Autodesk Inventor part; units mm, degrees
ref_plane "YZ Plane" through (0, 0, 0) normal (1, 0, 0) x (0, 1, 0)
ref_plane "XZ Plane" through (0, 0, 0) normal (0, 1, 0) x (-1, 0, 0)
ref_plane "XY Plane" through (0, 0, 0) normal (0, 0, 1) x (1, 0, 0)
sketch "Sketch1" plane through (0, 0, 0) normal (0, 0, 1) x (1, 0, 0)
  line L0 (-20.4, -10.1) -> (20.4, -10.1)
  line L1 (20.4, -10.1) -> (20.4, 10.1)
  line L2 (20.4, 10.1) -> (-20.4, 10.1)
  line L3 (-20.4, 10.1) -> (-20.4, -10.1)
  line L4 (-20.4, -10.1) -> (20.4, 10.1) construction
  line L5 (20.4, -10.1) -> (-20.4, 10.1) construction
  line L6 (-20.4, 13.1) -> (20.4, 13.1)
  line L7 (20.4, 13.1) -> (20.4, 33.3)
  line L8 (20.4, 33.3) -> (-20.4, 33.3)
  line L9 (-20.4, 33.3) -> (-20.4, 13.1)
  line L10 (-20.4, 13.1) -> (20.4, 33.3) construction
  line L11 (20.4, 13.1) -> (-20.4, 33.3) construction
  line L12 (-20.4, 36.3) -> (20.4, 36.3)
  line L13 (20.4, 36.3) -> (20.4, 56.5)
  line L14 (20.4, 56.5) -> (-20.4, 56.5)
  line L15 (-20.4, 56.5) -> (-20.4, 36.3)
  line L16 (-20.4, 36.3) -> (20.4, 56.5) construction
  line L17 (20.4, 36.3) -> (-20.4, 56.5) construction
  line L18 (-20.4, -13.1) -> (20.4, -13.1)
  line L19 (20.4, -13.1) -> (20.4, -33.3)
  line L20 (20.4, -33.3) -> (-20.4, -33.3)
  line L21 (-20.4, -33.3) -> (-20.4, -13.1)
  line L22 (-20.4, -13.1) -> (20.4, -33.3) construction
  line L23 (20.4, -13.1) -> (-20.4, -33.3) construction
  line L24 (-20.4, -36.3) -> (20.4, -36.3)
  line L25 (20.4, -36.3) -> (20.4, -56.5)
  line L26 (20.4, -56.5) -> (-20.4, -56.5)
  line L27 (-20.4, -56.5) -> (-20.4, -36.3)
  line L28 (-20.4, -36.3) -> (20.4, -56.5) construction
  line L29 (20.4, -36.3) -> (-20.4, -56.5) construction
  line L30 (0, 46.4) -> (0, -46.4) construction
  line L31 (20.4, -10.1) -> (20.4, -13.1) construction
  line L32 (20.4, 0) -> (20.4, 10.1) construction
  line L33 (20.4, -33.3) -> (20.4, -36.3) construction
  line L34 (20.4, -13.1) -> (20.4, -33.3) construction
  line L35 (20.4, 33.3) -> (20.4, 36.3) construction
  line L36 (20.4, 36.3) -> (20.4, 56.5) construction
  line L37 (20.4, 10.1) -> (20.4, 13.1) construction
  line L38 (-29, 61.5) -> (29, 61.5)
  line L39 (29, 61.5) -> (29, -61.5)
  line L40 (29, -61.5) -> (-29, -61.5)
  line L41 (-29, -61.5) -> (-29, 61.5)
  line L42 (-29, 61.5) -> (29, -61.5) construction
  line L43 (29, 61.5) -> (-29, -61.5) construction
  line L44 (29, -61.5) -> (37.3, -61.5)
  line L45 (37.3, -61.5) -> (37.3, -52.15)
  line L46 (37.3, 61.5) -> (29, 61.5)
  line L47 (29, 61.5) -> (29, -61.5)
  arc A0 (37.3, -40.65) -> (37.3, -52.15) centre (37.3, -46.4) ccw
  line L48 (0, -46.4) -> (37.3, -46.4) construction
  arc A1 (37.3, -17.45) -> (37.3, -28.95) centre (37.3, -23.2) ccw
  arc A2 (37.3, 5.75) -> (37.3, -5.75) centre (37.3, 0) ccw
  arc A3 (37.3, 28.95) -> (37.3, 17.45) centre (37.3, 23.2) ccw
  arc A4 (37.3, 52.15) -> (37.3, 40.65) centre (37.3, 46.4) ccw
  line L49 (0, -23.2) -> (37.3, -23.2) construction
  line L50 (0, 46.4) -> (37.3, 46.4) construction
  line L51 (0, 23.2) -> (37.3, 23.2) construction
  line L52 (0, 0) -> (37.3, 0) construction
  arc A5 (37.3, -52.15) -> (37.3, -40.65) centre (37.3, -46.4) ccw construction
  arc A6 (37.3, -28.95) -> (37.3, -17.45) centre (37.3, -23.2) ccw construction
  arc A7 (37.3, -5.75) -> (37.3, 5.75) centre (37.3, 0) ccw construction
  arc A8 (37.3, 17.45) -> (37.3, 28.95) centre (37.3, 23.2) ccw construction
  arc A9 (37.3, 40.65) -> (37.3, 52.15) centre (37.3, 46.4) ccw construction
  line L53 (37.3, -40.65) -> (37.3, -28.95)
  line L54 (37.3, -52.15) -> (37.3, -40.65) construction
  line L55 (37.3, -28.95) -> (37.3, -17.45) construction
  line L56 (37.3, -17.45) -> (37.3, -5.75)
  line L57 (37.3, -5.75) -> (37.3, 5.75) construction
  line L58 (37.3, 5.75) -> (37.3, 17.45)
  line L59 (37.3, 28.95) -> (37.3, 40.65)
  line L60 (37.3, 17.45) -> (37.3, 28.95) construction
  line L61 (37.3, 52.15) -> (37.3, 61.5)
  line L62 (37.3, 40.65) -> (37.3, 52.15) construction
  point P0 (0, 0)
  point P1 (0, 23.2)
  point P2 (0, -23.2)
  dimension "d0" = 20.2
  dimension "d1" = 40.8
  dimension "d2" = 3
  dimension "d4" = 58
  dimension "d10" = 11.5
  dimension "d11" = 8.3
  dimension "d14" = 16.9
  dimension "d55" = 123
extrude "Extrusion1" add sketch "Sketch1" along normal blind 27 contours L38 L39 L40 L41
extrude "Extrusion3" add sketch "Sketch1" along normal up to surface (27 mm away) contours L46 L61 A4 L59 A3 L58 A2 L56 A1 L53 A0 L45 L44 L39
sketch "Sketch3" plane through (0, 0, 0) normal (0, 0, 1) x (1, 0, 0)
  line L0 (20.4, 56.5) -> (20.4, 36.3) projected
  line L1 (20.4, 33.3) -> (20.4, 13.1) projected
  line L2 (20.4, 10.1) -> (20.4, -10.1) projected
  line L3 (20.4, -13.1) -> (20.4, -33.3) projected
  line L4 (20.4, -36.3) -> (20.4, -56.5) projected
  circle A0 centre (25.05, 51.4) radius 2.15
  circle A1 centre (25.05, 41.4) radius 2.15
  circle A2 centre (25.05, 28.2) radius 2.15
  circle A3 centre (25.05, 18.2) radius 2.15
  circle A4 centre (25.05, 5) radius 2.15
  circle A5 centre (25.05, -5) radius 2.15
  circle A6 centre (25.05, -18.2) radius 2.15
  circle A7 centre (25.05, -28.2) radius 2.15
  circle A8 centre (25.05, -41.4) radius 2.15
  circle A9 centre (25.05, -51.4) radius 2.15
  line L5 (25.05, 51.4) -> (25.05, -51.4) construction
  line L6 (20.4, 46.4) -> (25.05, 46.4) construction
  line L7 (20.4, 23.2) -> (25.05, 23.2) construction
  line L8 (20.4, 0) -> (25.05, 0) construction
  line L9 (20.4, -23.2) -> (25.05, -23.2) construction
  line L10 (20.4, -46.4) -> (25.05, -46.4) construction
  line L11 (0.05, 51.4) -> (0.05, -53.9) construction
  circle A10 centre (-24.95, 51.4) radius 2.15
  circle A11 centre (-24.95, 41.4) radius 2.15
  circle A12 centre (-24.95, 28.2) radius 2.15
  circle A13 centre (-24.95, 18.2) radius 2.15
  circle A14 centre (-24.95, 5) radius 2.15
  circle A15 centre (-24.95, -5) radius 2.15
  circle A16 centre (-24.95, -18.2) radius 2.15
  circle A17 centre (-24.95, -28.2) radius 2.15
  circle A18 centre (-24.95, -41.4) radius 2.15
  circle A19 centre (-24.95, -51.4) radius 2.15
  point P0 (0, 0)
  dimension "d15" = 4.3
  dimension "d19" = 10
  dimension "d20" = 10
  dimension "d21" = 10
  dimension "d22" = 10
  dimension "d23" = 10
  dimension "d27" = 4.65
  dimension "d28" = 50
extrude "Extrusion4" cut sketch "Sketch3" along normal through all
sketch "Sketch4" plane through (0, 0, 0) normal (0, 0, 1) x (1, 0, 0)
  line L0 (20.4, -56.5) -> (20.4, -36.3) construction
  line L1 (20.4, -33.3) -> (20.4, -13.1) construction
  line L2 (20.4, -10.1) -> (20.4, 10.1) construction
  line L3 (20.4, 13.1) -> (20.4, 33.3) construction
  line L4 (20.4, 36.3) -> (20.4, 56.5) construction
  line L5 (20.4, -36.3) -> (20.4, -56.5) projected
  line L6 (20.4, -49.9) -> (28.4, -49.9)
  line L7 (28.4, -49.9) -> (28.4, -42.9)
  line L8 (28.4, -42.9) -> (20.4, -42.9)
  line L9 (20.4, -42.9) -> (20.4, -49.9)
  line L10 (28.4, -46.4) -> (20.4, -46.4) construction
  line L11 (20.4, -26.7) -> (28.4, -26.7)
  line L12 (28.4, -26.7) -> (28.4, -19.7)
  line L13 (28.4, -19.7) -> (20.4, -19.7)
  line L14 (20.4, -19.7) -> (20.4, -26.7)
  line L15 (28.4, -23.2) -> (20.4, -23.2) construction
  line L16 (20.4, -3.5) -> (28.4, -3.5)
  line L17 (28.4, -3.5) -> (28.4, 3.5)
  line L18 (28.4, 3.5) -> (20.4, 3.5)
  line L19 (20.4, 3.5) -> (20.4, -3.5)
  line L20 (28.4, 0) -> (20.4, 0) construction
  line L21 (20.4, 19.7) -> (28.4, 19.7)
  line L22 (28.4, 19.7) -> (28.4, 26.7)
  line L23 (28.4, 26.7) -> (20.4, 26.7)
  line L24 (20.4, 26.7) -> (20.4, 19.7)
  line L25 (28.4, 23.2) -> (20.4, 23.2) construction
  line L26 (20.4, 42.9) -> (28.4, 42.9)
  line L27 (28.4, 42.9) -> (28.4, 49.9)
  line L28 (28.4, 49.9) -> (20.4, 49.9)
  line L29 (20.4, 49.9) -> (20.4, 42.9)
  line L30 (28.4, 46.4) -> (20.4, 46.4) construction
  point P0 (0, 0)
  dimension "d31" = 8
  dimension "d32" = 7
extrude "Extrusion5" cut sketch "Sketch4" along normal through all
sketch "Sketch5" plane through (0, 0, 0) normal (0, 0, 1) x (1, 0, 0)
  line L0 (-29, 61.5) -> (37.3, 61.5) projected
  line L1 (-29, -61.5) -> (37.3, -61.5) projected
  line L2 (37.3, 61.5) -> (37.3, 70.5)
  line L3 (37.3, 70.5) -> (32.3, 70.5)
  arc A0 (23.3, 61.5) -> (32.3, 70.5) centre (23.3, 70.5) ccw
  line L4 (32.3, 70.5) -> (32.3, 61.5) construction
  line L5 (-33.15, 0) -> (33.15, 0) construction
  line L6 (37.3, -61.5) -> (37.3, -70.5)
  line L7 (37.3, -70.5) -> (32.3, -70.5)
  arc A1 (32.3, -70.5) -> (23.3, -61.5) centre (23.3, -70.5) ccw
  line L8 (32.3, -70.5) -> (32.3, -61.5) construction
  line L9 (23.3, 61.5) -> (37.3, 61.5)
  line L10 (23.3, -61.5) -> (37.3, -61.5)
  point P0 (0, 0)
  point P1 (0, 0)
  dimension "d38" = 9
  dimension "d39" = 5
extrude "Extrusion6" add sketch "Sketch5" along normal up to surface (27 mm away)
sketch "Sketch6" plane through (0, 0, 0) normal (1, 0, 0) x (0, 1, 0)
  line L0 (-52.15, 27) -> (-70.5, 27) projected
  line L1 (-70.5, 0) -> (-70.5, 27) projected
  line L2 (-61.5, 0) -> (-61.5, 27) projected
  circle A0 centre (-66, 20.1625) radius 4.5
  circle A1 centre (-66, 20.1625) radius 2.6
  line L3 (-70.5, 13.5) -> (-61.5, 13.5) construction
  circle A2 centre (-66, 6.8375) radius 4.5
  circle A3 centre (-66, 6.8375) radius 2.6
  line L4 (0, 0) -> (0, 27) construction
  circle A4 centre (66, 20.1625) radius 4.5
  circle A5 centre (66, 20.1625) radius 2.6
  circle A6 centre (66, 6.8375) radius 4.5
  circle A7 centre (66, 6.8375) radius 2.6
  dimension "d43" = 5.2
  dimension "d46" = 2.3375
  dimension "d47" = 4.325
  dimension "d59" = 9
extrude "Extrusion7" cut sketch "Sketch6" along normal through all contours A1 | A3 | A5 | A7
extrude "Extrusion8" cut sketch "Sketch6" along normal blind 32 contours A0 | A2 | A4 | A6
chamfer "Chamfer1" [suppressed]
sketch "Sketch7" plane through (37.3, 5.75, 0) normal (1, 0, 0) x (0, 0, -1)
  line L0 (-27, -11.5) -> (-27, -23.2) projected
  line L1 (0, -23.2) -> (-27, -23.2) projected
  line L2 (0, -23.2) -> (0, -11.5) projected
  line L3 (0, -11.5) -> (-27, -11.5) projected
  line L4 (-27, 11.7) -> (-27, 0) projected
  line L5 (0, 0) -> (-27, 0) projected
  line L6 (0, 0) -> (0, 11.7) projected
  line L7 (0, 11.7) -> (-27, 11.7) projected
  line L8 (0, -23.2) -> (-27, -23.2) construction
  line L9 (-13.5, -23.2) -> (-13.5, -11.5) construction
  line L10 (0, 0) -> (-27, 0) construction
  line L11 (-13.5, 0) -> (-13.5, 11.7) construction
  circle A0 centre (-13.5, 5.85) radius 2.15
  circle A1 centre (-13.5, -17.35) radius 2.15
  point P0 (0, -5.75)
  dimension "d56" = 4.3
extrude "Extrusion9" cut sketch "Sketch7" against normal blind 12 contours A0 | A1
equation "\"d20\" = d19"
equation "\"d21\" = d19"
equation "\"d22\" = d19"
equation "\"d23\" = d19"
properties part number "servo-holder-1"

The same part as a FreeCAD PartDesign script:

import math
import FreeCAD as App
import Part
import Sketcher
Q = App.Units.Quantity

doc = App.newDocument("Part")
body = doc.addObject("PartDesign::Body", "Body")

sketch1 = body.newObject("Sketcher::SketchObject", "Sketch")
sketch1.AttachmentSupport = (doc.getObject("XY_Plane"), [""])
sketch1.MapMode = "FlatFace"
sketch1.addGeometry(Part.LineSegment(App.Vector(29, 62, 0), App.Vector(-29, 62, 0)), False)
sketch1.addGeometry(Part.LineSegment(App.Vector(-29, 62, 0), App.Vector(-29, -62, 0)), False)
sketch1.addGeometry(Part.LineSegment(App.Vector(-29, -62, 0), App.Vector(29, -62, 0)), False)
sketch1.addGeometry(Part.LineSegment(App.Vector(29, -62, 0), App.Vector(29, 62, 0)), False)
sketch1.addGeometry(Part.LineSegment(App.Vector(-20, -56, 0), App.Vector(-20, -36, 0)), False)
sketch1.addGeometry(Part.LineSegment(App.Vector(-20, -36, 0), App.Vector(20, -36, 0)), False)
sketch1.addGeometry(Part.LineSegment(App.Vector(20, -36, 0), App.Vector(20, -56, 0)), False)
sketch1.addGeometry(Part.LineSegment(App.Vector(20, -56, 0), App.Vector(-20, -56, 0)), False)
sketch1.addGeometry(Part.LineSegment(App.Vector(-20, -33, 0), App.Vector(-20, -13, 0)), False)
sketch1.addGeometry(Part.LineSegment(App.Vector(-20, -13, 0), App.Vector(20, -13, 0)), False)
sketch1.addGeometry(Part.LineSegment(App.Vector(20, -13, 0), App.Vector(20, -33, 0)), False)
sketch1.addGeometry(Part.LineSegment(App.Vector(20, -33, 0), App.Vector(-20, -33, 0)), False)
sketch1.addGeometry(Part.LineSegment(App.Vector(20, -10, 0), App.Vector(-20, -10, 0)), False)
sketch1.addGeometry(Part.LineSegment(App.Vector(-20, -10, 0), App.Vector(-20, 10, 0)), False)
sketch1.addGeometry(Part.LineSegment(App.Vector(-20, 10, 0), App.Vector(20, 10, 0)), False)
sketch1.addGeometry(Part.LineSegment(App.Vector(20, 10, 0), App.Vector(20, -10, 0)), False)
sketch1.addGeometry(Part.LineSegment(App.Vector(20, 13, 0), App.Vector(-20, 13, 0)), False)
sketch1.addGeometry(Part.LineSegment(App.Vector(-20, 13, 0), App.Vector(-20, 33, 0)), False)
sketch1.addGeometry(Part.LineSegment(App.Vector(-20, 33, 0), App.Vector(20, 33, 0)), False)
sketch1.addGeometry(Part.LineSegment(App.Vector(20, 33, 0), App.Vector(20, 13, 0)), False)
sketch1.addGeometry(Part.LineSegment(App.Vector(20, 36, 0), App.Vector(-20, 36, 0)), False)
sketch1.addGeometry(Part.LineSegment(App.Vector(-20, 36, 0), App.Vector(-20, 56, 0)), False)
sketch1.addGeometry(Part.LineSegment(App.Vector(-20, 56, 0), App.Vector(20, 56, 0)), False)
sketch1.addGeometry(Part.LineSegment(App.Vector(20, 56, 0), App.Vector(20, 36, 0)), False)
sketch1.addConstraint(Sketcher.Constraint("Coincident", 0, 2, 1, 1))
sketch1.addConstraint(Sketcher.Constraint("Coincident", 1, 2, 2, 1))
sketch1.addConstraint(Sketcher.Constraint("Coincident", 2, 2, 3, 1))
sketch1.addConstraint(Sketcher.Constraint("Coincident", 3, 2, 0, 1))
sketch1.addConstraint(Sketcher.Constraint("Coincident", 4, 2, 5, 1))
sketch1.addConstraint(Sketcher.Constraint("Coincident", 5, 2, 6, 1))
sketch1.addConstraint(Sketcher.Constraint("Coincident", 6, 2, 7, 1))
sketch1.addConstraint(Sketcher.Constraint("Coincident", 7, 2, 4, 1))
sketch1.addConstraint(Sketcher.Constraint("Coincident", 8, 2, 9, 1))
sketch1.addConstraint(Sketcher.Constraint("Coincident", 9, 2, 10, 1))
sketch1.addConstraint(Sketcher.Constraint("Coincident", 10, 2, 11, 1))
sketch1.addConstraint(Sketcher.Constraint("Coincident", 11, 2, 8, 1))
sketch1.addConstraint(Sketcher.Constraint("Coincident", 12, 2, 13, 1))
sketch1.addConstraint(Sketcher.Constraint("Coincident", 13, 2, 14, 1))
sketch1.addConstraint(Sketcher.Constraint("Coincident", 14, 2, 15, 1))
sketch1.addConstraint(Sketcher.Constraint("Coincident", 15, 2, 12, 1))
sketch1.addConstraint(Sketcher.Constraint("Coincident", 16, 2, 17, 1))
sketch1.addConstraint(Sketcher.Constraint("Coincident", 17, 2, 18, 1))
sketch1.addConstraint(Sketcher.Constraint("Coincident", 18, 2, 19, 1))
sketch1.addConstraint(Sketcher.Constraint("Coincident", 19, 2, 16, 1))
sketch1.addConstraint(Sketcher.Constraint("Coincident", 20, 2, 21, 1))
sketch1.addConstraint(Sketcher.Constraint("Coincident", 21, 2, 22, 1))
sketch1.addConstraint(Sketcher.Constraint("Coincident", 22, 2, 23, 1))
sketch1.addConstraint(Sketcher.Constraint("Coincident", 23, 2, 20, 1))
sketch1.addConstraint(Sketcher.Constraint("Horizontal", 0))
sketch1.addConstraint(Sketcher.Constraint("Vertical", 1))
sketch1.addConstraint(Sketcher.Constraint("Horizontal", 2))
sketch1.addConstraint(Sketcher.Constraint("Vertical", 3))
sketch1.addConstraint(Sketcher.Constraint("Vertical", 4))
sketch1.addConstraint(Sketcher.Constraint("Horizontal", 5))
sketch1.addConstraint(Sketcher.Constraint("Vertical", 6))
sketch1.addConstraint(Sketcher.Constraint("Horizontal", 7))
sketch1.addConstraint(Sketcher.Constraint("Vertical", 8))
sketch1.addConstraint(Sketcher.Constraint("Horizontal", 9))
sketch1.addConstraint(Sketcher.Constraint("Vertical", 10))
sketch1.addConstraint(Sketcher.Constraint("Horizontal", 11))
sketch1.addConstraint(Sketcher.Constraint("Horizontal", 12))
sketch1.addConstraint(Sketcher.Constraint("Vertical", 13))
sketch1.addConstraint(Sketcher.Constraint("Horizontal", 14))
sketch1.addConstraint(Sketcher.Constraint("Vertical", 15))
sketch1.addConstraint(Sketcher.Constraint("Horizontal", 16))
sketch1.addConstraint(Sketcher.Constraint("Vertical", 17))
sketch1.addConstraint(Sketcher.Constraint("Horizontal", 18))
sketch1.addConstraint(Sketcher.Constraint("Vertical", 19))
sketch1.addConstraint(Sketcher.Constraint("Horizontal", 20))
sketch1.addConstraint(Sketcher.Constraint("Vertical", 21))
sketch1.addConstraint(Sketcher.Constraint("Horizontal", 22))
sketch1.addConstraint(Sketcher.Constraint("Vertical", 23))
sketch1.addConstraint(Sketcher.Constraint("Symmetric", 0, 2, 2, 2, -1, 1))
sketch1.addConstraint(Sketcher.Constraint("Symmetric", 12, 2, 14, 2, -1, 1))
sketch1.addConstraint(Sketcher.Constraint("Symmetric", 9, 2, 16, 2, -1, 1))
sketch1.addConstraint(Sketcher.Constraint("Symmetric", 11, 2, 18, 2, -1, 1))
sketch1.addConstraint(Sketcher.Constraint("Symmetric", 5, 2, 20, 2, -1, 1))
sketch1.addConstraint(Sketcher.Constraint("Symmetric", 7, 2, 22, 2, -1, 1))
sketch1.addConstraint(Sketcher.Constraint("Vertical", 7, 2, 8, 2))
sketch1.addConstraint(Sketcher.Constraint("Vertical", 6, 2, 9, 2))
sketch1.addConstraint(Sketcher.Constraint("Vertical", 11, 2, 12, 2))
sketch1.addConstraint(Sketcher.Constraint("Vertical", 10, 2, 14, 2))
sketch1.addConstraint(Sketcher.Constraint("Equal", 6, 8))
sketch1.addConstraint(Sketcher.Constraint("Equal", 10, 13))
sketch1.addConstraint(Sketcher.Constraint("DistanceX", 0, 2, 0, 1, Q("58 mm")))
sketch1.addConstraint(Sketcher.Constraint("DistanceY", 1, 2, 1, 1, Q("123 mm")))
sketch1.addConstraint(Sketcher.Constraint("DistanceX", 5, 1, 5, 2, Q("40.8 mm")))
sketch1.addConstraint(Sketcher.Constraint("DistanceY", 4, 1, 4, 2, Q("20.2 mm")))
sketch1.addConstraint(Sketcher.Constraint("DistanceY", 5, 2, 10, 2, Q("3 mm")))
sketch1.addConstraint(Sketcher.Constraint("DistanceY", 8, 2, 12, 2, Q("3 mm")))
pad1 = body.newObject("PartDesign::Pad", "Pad")
pad1.Profile = sketch1
pad1.Length = 27

sketch2 = body.newObject("Sketcher::SketchObject", "Sketch001")
sketch2.AttachmentSupport = (doc.getObject("XY_Plane"), [""])
sketch2.MapMode = "FlatFace"
sketch2.addGeometry(Part.LineSegment(App.Vector(37, 62, 0), App.Vector(29, 62, 0)), False)
sketch2.addGeometry(Part.LineSegment(App.Vector(29, 62, 0), App.Vector(29, -62, 0)), False)
sketch2.addGeometry(Part.LineSegment(App.Vector(29, -62, 0), App.Vector(37, -62, 0)), False)
sketch2.addGeometry(Part.LineSegment(App.Vector(37, -62, 0), App.Vector(37, -52, 0)), False)
sketch2.addGeometry(Part.ArcOfCircle(Part.Circle(App.Vector(37, -46, 0), App.Vector(0, 0, 1), 6), math.radians(90), math.radians(270)), False)
sketch2.addGeometry(Part.LineSegment(App.Vector(37, -41, 0), App.Vector(37, -29, 0)), False)
sketch2.addGeometry(Part.ArcOfCircle(Part.Circle(App.Vector(37, -23, 0), App.Vector(0, 0, 1), 6), math.radians(90), math.radians(270)), False)
sketch2.addGeometry(Part.LineSegment(App.Vector(37, -17, 0), App.Vector(37, -6, 0)), False)
sketch2.addGeometry(Part.ArcOfCircle(Part.Circle(App.Vector(37, 0, 0), App.Vector(0, 0, 1), 6), math.radians(90), math.radians(270)), False)
sketch2.addGeometry(Part.LineSegment(App.Vector(37, 6, 0), App.Vector(37, 17, 0)), False)
sketch2.addGeometry(Part.ArcOfCircle(Part.Circle(App.Vector(37, 23, 0), App.Vector(0, 0, 1), 6), math.radians(90), math.radians(270)), False)
sketch2.addGeometry(Part.LineSegment(App.Vector(37, 29, 0), App.Vector(37, 41, 0)), False)
sketch2.addGeometry(Part.ArcOfCircle(Part.Circle(App.Vector(37, 46, 0), App.Vector(0, 0, 1), 6), math.radians(90), math.radians(270)), False)
sketch2.addGeometry(Part.LineSegment(App.Vector(37, 52, 0), App.Vector(37, 62, 0)), False)
sketch2.addConstraint(Sketcher.Constraint("Coincident", 0, 2, 1, 1))
sketch2.addConstraint(Sketcher.Constraint("Coincident", 1, 2, 2, 1))
sketch2.addConstraint(Sketcher.Constraint("Coincident", 2, 2, 3, 1))
sketch2.addConstraint(Sketcher.Constraint("Coincident", 3, 2, 4, 2))
sketch2.addConstraint(Sketcher.Constraint("Coincident", 4, 1, 5, 1))
sketch2.addConstraint(Sketcher.Constraint("Coincident", 5, 2, 6, 2))
sketch2.addConstraint(Sketcher.Constraint("Coincident", 6, 1, 7, 1))
sketch2.addConstraint(Sketcher.Constraint("Coincident", 7, 2, 8, 2))
sketch2.addConstraint(Sketcher.Constraint("Coincident", 8, 1, 9, 1))
sketch2.addConstraint(Sketcher.Constraint("Coincident", 9, 2, 10, 2))
sketch2.addConstraint(Sketcher.Constraint("Coincident", 10, 1, 11, 1))
sketch2.addConstraint(Sketcher.Constraint("Coincident", 11, 2, 12, 2))
sketch2.addConstraint(Sketcher.Constraint("Coincident", 12, 1, 13, 1))
sketch2.addConstraint(Sketcher.Constraint("Coincident", 13, 2, 0, 1))
sketch2.addConstraint(Sketcher.Constraint("Horizontal", 0))
sketch2.addConstraint(Sketcher.Constraint("Vertical", 1))
sketch2.addConstraint(Sketcher.Constraint("Horizontal", 2))
sketch2.addConstraint(Sketcher.Constraint("Vertical", 3))
sketch2.addConstraint(Sketcher.Constraint("Vertical", 5))
sketch2.addConstraint(Sketcher.Constraint("Vertical", 7))
sketch2.addConstraint(Sketcher.Constraint("Vertical", 9))
sketch2.addConstraint(Sketcher.Constraint("Vertical", 11))
sketch2.addConstraint(Sketcher.Constraint("Vertical", 13))
sketch2.addConstraint(Sketcher.Constraint("Equal", 4, 6))
sketch2.addConstraint(Sketcher.Constraint("Equal", 6, 8))
sketch2.addConstraint(Sketcher.Constraint("Equal", 8, 10))
sketch2.addConstraint(Sketcher.Constraint("Equal", 10, 12))
sketch2.addConstraint(Sketcher.Constraint("Symmetric", 6, 3, 10, 3, -1))
sketch2.addConstraint(Sketcher.Constraint("Symmetric", 4, 3, 12, 3, -1))
sketch2.addConstraint(Sketcher.Constraint("Symmetric", 7, 2, 8, 1, -1))
sketch2.addConstraint(Sketcher.Constraint("Symmetric", 2, 2, 13, 2, -1))
sketch2.addConstraint(Sketcher.Constraint("Vertical", 4, 3, 6, 3))
sketch2.addConstraint(Sketcher.Constraint("Vertical", 6, 3, 8, 3))
sketch2.addConstraint(Sketcher.Constraint("Vertical", 12, 3, 2, 2))
sketch2.addConstraint(Sketcher.Constraint("Vertical", 3, 2, 4, 1))
sketch2.addConstraint(Sketcher.Constraint("Vertical", 5, 2, 6, 1))
sketch2.addConstraint(Sketcher.Constraint("Vertical", 9, 2, 10, 1))
sketch2.addConstraint(Sketcher.Constraint("Equal", 5, 7))
sketch2.addConstraint(Sketcher.Constraint("DistanceY", 1, 2, 1, 1, Q("123 mm")))
sketch2.addConstraint(Sketcher.Constraint("Radius", 4, Q("5.75 mm")))
sketch2.addConstraint(Sketcher.Constraint("DistanceX", 0, 2, 0, 1, Q("8.3 mm")))
sketch2.addConstraint(Sketcher.Constraint("DistanceY", 5, 1, 5, 2, Q("11.7 mm")))
sketch2.addConstraint(Sketcher.Constraint("DistanceX", -1, 1, 0, 2, Q("29 mm")))
pad2 = body.newObject("PartDesign::Pad", "Pad001")
pad2.Profile = sketch2
pad2.Length = 27

sketch3 = body.newObject("Sketcher::SketchObject", "Sketch002")
sketch3.AttachmentSupport = (doc.getObject("XY_Plane"), [""])
sketch3.MapMode = "FlatFace"
sketch3.addGeometry(Part.Circle(App.Vector(25.1, 51.4, 0), App.Vector(0, 0, 1), 2.1), False)
sketch3.addGeometry(Part.Circle(App.Vector(25.1, 41.4, 0), App.Vector(0, 0, 1), 2.1), False)
sketch3.addGeometry(Part.Circle(App.Vector(25.1, 28.2, 0), App.Vector(0, 0, 1), 2.1), False)
sketch3.addGeometry(Part.Circle(App.Vector(25.1, 18.2, 0), App.Vector(0, 0, 1), 2.1), False)
sketch3.addGeometry(Part.Circle(App.Vector(25.1, 5, 0), App.Vector(0, 0, 1), 2.1), False)
sketch3.addGeometry(Part.Circle(App.Vector(25.1, -5, 0), App.Vector(0, 0, 1), 2.1), False)
sketch3.addGeometry(Part.Circle(App.Vector(25.1, -18.2, 0), App.Vector(0, 0, 1), 2.1), False)
sketch3.addGeometry(Part.Circle(App.Vector(25.1, -28.2, 0), App.Vector(0, 0, 1), 2.1), False)
sketch3.addGeometry(Part.Circle(App.Vector(25.1, -41.4, 0), App.Vector(0, 0, 1), 2.1), False)
sketch3.addGeometry(Part.Circle(App.Vector(25.1, -51.4, 0), App.Vector(0, 0, 1), 2.1), False)
sketch3.addGeometry(Part.Circle(App.Vector(-24.9, 51.4, 0), App.Vector(0, 0, 1), 2.1), False)
sketch3.addGeometry(Part.Circle(App.Vector(-24.9, 41.4, 0), App.Vector(0, 0, 1), 2.1), False)
sketch3.addGeometry(Part.Circle(App.Vector(-24.9, 28.2, 0), App.Vector(0, 0, 1), 2.1), False)
sketch3.addGeometry(Part.Circle(App.Vector(-24.9, 18.2, 0), App.Vector(0, 0, 1), 2.1), False)
sketch3.addGeometry(Part.Circle(App.Vector(-24.9, 5, 0), App.Vector(0, 0, 1), 2.1), False)
sketch3.addGeometry(Part.Circle(App.Vector(-24.9, -5, 0), App.Vector(0, 0, 1), 2.1), False)
sketch3.addGeometry(Part.Circle(App.Vector(-24.9, -18.2, 0), App.Vector(0, 0, 1), 2.1), False)
sketch3.addGeometry(Part.Circle(App.Vector(-24.9, -28.2, 0), App.Vector(0, 0, 1), 2.1), False)
sketch3.addGeometry(Part.Circle(App.Vector(-24.9, -41.4, 0), App.Vector(0, 0, 1), 2.1), False)
sketch3.addGeometry(Part.Circle(App.Vector(-24.9, -51.4, 0), App.Vector(0, 0, 1), 2.1), False)
sketch3.addConstraint(Sketcher.Constraint("Equal", 0, 1))
sketch3.addConstraint(Sketcher.Constraint("Equal", 1, 2))
sketch3.addConstraint(Sketcher.Constraint("Equal", 2, 3))
sketch3.addConstraint(Sketcher.Constraint("Equal", 3, 4))
sketch3.addConstraint(Sketcher.Constraint("Equal", 4, 5))
sketch3.addConstraint(Sketcher.Constraint("Equal", 5, 6))
sketch3.addConstraint(Sketcher.Constraint("Equal", 6, 7))
sketch3.addConstraint(Sketcher.Constraint("Equal", 7, 8))
sketch3.addConstraint(Sketcher.Constraint("Equal", 8, 9))
sketch3.addConstraint(Sketcher.Constraint("Equal", 9, 10))
sketch3.addConstraint(Sketcher.Constraint("Equal", 10, 11))
sketch3.addConstraint(Sketcher.Constraint("Equal", 11, 12))
sketch3.addConstraint(Sketcher.Constraint("Equal", 12, 13))
sketch3.addConstraint(Sketcher.Constraint("Equal", 13, 14))
sketch3.addConstraint(Sketcher.Constraint("Equal", 14, 15))
sketch3.addConstraint(Sketcher.Constraint("Equal", 15, 16))
sketch3.addConstraint(Sketcher.Constraint("Equal", 16, 17))
sketch3.addConstraint(Sketcher.Constraint("Equal", 17, 18))
sketch3.addConstraint(Sketcher.Constraint("Equal", 18, 19))
sketch3.addConstraint(Sketcher.Constraint("Symmetric", 4, 3, 5, 3, -1))
sketch3.addConstraint(Sketcher.Constraint("Symmetric", 3, 3, 6, 3, -1))
sketch3.addConstraint(Sketcher.Constraint("Symmetric", 2, 3, 7, 3, -1))
sketch3.addConstraint(Sketcher.Constraint("Symmetric", 1, 3, 8, 3, -1))
sketch3.addConstraint(Sketcher.Constraint("Symmetric", 0, 3, 9, 3, -1))
sketch3.addConstraint(Sketcher.Constraint("Symmetric", 14, 3, 15, 3, -1))
sketch3.addConstraint(Sketcher.Constraint("Symmetric", 13, 3, 16, 3, -1))
sketch3.addConstraint(Sketcher.Constraint("Symmetric", 12, 3, 17, 3, -1))
sketch3.addConstraint(Sketcher.Constraint("Symmetric", 11, 3, 18, 3, -1))
sketch3.addConstraint(Sketcher.Constraint("Symmetric", 10, 3, 19, 3, -1))
sketch3.addConstraint(Sketcher.Constraint("Horizontal", 0, 3, 10, 3))
sketch3.addConstraint(Sketcher.Constraint("Horizontal", 1, 3, 11, 3))
sketch3.addConstraint(Sketcher.Constraint("Horizontal", 2, 3, 12, 3))
sketch3.addConstraint(Sketcher.Constraint("Horizontal", 3, 3, 13, 3))
sketch3.addConstraint(Sketcher.Constraint("Horizontal", 4, 3, 14, 3))
sketch3.addConstraint(Sketcher.Constraint("Vertical", 0, 3, 1, 3))
sketch3.addConstraint(Sketcher.Constraint("Vertical", 1, 3, 2, 3))
sketch3.addConstraint(Sketcher.Constraint("Vertical", 2, 3, 3, 3))
sketch3.addConstraint(Sketcher.Constraint("Vertical", 3, 3, 4, 3))
sketch3.addConstraint(Sketcher.Constraint("Vertical", 10, 3, 11, 3))
sketch3.addConstraint(Sketcher.Constraint("Vertical", 11, 3, 12, 3))
sketch3.addConstraint(Sketcher.Constraint("Vertical", 12, 3, 13, 3))
sketch3.addConstraint(Sketcher.Constraint("Vertical", 13, 3, 14, 3))
sketch3.addConstraint(Sketcher.Constraint("Diameter", 0, Q("4.3 mm")))
sketch3.addConstraint(Sketcher.Constraint("DistanceY", 1, 3, 0, 3, Q("10 mm")))
sketch3.addConstraint(Sketcher.Constraint("DistanceY", 3, 3, 2, 3, Q("10 mm")))
sketch3.addConstraint(Sketcher.Constraint("DistanceY", 5, 3, 4, 3, Q("10 mm")))
sketch3.addConstraint(Sketcher.Constraint("DistanceX", 10, 3, 0, 3, Q("50 mm")))
sketch3.addConstraint(Sketcher.Constraint("DistanceY", -1, 1, 0, 3, Q("51.4 mm")))
sketch3.addConstraint(Sketcher.Constraint("DistanceY", -1, 1, 2, 3, Q("28.2 mm")))
sketch3.addConstraint(Sketcher.Constraint("DistanceX", -1, 1, 0, 3, Q("25.05 mm")))
pocket1 = body.newObject("PartDesign::Pocket", "Pocket")
pocket1.Profile = sketch3
pocket1.Type = "ThroughAll"
pocket1.Reversed = True

sketch4 = body.newObject("Sketcher::SketchObject", "Sketch003")
sketch4.AttachmentSupport = (doc.getObject("XY_Plane"), [""])
sketch4.MapMode = "FlatFace"
sketch4.addGeometry(Part.LineSegment(App.Vector(28, -43, 0), App.Vector(20, -43, 0)), False)
sketch4.addGeometry(Part.LineSegment(App.Vector(20, -43, 0), App.Vector(20, -50, 0)), False)
sketch4.addGeometry(Part.LineSegment(App.Vector(20, -50, 0), App.Vector(28, -50, 0)), False)
sketch4.addGeometry(Part.LineSegment(App.Vector(28, -50, 0), App.Vector(28, -43, 0)), False)
sketch4.addGeometry(Part.LineSegment(App.Vector(20, -20, 0), App.Vector(20, -27, 0)), False)
sketch4.addGeometry(Part.LineSegment(App.Vector(20, -27, 0), App.Vector(28, -27, 0)), False)
sketch4.addGeometry(Part.LineSegment(App.Vector(28, -27, 0), App.Vector(28, -20, 0)), False)
sketch4.addGeometry(Part.LineSegment(App.Vector(28, -20, 0), App.Vector(20, -20, 0)), False)
sketch4.addGeometry(Part.LineSegment(App.Vector(20, 4, 0), App.Vector(20, -4, 0)), False)
sketch4.addGeometry(Part.LineSegment(App.Vector(20, -4, 0), App.Vector(28, -4, 0)), False)
sketch4.addGeometry(Part.LineSegment(App.Vector(28, -4, 0), App.Vector(28, 4, 0)), False)
sketch4.addGeometry(Part.LineSegment(App.Vector(28, 4, 0), App.Vector(20, 4, 0)), False)
sketch4.addGeometry(Part.LineSegment(App.Vector(20, 27, 0), App.Vector(20, 20, 0)), False)
sketch4.addGeometry(Part.LineSegment(App.Vector(20, 20, 0), App.Vector(28, 20, 0)), False)
sketch4.addGeometry(Part.LineSegment(App.Vector(28, 20, 0), App.Vector(28, 27, 0)), False)
sketch4.addGeometry(Part.LineSegment(App.Vector(28, 27, 0), App.Vector(20, 27, 0)), False)
sketch4.addGeometry(Part.LineSegment(App.Vector(20, 50, 0), App.Vector(20, 43, 0)), False)
sketch4.addGeometry(Part.LineSegment(App.Vector(20, 43, 0), App.Vector(28, 43, 0)), False)
sketch4.addGeometry(Part.LineSegment(App.Vector(28, 43, 0), App.Vector(28, 50, 0)), False)
sketch4.addGeometry(Part.LineSegment(App.Vector(28, 50, 0), App.Vector(20, 50, 0)), False)
sketch4.addConstraint(Sketcher.Constraint("Coincident", 0, 2, 1, 1))
sketch4.addConstraint(Sketcher.Constraint("Coincident", 1, 2, 2, 1))
sketch4.addConstraint(Sketcher.Constraint("Coincident", 2, 2, 3, 1))
sketch4.addConstraint(Sketcher.Constraint("Coincident", 3, 2, 0, 1))
sketch4.addConstraint(Sketcher.Constraint("Coincident", 4, 2, 5, 1))
sketch4.addConstraint(Sketcher.Constraint("Coincident", 5, 2, 6, 1))
sketch4.addConstraint(Sketcher.Constraint("Coincident", 6, 2, 7, 1))
sketch4.addConstraint(Sketcher.Constraint("Coincident", 7, 2, 4, 1))
sketch4.addConstraint(Sketcher.Constraint("Coincident", 8, 2, 9, 1))
sketch4.addConstraint(Sketcher.Constraint("Coincident", 9, 2, 10, 1))
sketch4.addConstraint(Sketcher.Constraint("Coincident", 10, 2, 11, 1))
sketch4.addConstraint(Sketcher.Constraint("Coincident", 11, 2, 8, 1))
sketch4.addConstraint(Sketcher.Constraint("Coincident", 12, 2, 13, 1))
sketch4.addConstraint(Sketcher.Constraint("Coincident", 13, 2, 14, 1))
sketch4.addConstraint(Sketcher.Constraint("Coincident", 14, 2, 15, 1))
sketch4.addConstraint(Sketcher.Constraint("Coincident", 15, 2, 12, 1))
sketch4.addConstraint(Sketcher.Constraint("Coincident", 16, 2, 17, 1))
sketch4.addConstraint(Sketcher.Constraint("Coincident", 17, 2, 18, 1))
sketch4.addConstraint(Sketcher.Constraint("Coincident", 18, 2, 19, 1))
sketch4.addConstraint(Sketcher.Constraint("Coincident", 19, 2, 16, 1))
sketch4.addConstraint(Sketcher.Constraint("Horizontal", 0))
sketch4.addConstraint(Sketcher.Constraint("Vertical", 1))
sketch4.addConstraint(Sketcher.Constraint("Horizontal", 2))
sketch4.addConstraint(Sketcher.Constraint("Vertical", 3))
sketch4.addConstraint(Sketcher.Constraint("Vertical", 4))
sketch4.addConstraint(Sketcher.Constraint("Horizontal", 5))
sketch4.addConstraint(Sketcher.Constraint("Vertical", 6))
sketch4.addConstraint(Sketcher.Constraint("Horizontal", 7))
sketch4.addConstraint(Sketcher.Constraint("Vertical", 8))
sketch4.addConstraint(Sketcher.Constraint("Horizontal", 9))
sketch4.addConstraint(Sketcher.Constraint("Vertical", 10))
sketch4.addConstraint(Sketcher.Constraint("Horizontal", 11))
sketch4.addConstraint(Sketcher.Constraint("Vertical", 12))
sketch4.addConstraint(Sketcher.Constraint("Horizontal", 13))
sketch4.addConstraint(Sketcher.Constraint("Vertical", 14))
sketch4.addConstraint(Sketcher.Constraint("Horizontal", 15))
sketch4.addConstraint(Sketcher.Constraint("Vertical", 16))
sketch4.addConstraint(Sketcher.Constraint("Horizontal", 17))
sketch4.addConstraint(Sketcher.Constraint("Vertical", 18))
sketch4.addConstraint(Sketcher.Constraint("Horizontal", 19))
sketch4.addConstraint(Sketcher.Constraint("Symmetric", 7, 2, 12, 2, -1))
sketch4.addConstraint(Sketcher.Constraint("Symmetric", 5, 2, 14, 2, -1))
sketch4.addConstraint(Sketcher.Constraint("Symmetric", 0, 2, 16, 2, -1))
sketch4.addConstraint(Sketcher.Constraint("Symmetric", 2, 2, 18, 2, -1))
sketch4.addConstraint(Sketcher.Constraint("Vertical", 1, 2, 4, 2))
sketch4.addConstraint(Sketcher.Constraint("Vertical", 3, 2, 5, 2))
sketch4.addConstraint(Sketcher.Constraint("Vertical", 7, 2, 8, 2))
sketch4.addConstraint(Sketcher.Constraint("Vertical", 6, 2, 9, 2))
sketch4.addConstraint(Sketcher.Constraint("Equal", 3, 4))
sketch4.addConstraint(Sketcher.Constraint("Equal", 6, 8))
sketch4.addConstraint(Sketcher.Constraint("DistanceX", 0, 2, 0, 1, Q("8 mm")))
sketch4.addConstraint(Sketcher.Constraint("DistanceY", 1, 2, 1, 1, Q("7 mm")))
sketch4.addConstraint(Sketcher.Constraint("DistanceX", -1, 1, 0, 2, Q("20.4 mm")))
sketch4.addConstraint(Sketcher.Constraint("DistanceY", 0, 2, -1, 1, Q("42.9 mm")))
sketch4.addConstraint(Sketcher.Constraint("DistanceY", 4, 2, -1, 1, Q("26.7 mm")))
sketch4.addConstraint(Sketcher.Constraint("DistanceY", 8, 2, -1, 1, Q("3.5 mm")))
pocket2 = body.newObject("PartDesign::Pocket", "Pocket001")
pocket2.Profile = sketch4
pocket2.Type = "ThroughAll"
pocket2.Reversed = True

sketch5 = body.newObject("Sketcher::SketchObject", "Sketch004")
sketch5.AttachmentSupport = (doc.getObject("XY_Plane"), [""])
sketch5.MapMode = "FlatFace"
sketch5.addGeometry(Part.ArcOfCircle(Part.Circle(App.Vector(23, 70, 0), App.Vector(0, 0, 1), 9), math.radians(-90), math.radians(0)), False)
sketch5.addGeometry(Part.LineSegment(App.Vector(23, 62, 0), App.Vector(37, 62, 0)), False)
sketch5.addGeometry(Part.LineSegment(App.Vector(37, 62, 0), App.Vector(37, 70, 0)), False)
sketch5.addGeometry(Part.LineSegment(App.Vector(37, 70, 0), App.Vector(32, 70, 0)), False)
sketch5.addGeometry(Part.LineSegment(App.Vector(37, -62, 0), App.Vector(23, -62, 0)), False)
sketch5.addGeometry(Part.ArcOfCircle(Part.Circle(App.Vector(23, -70, 0), App.Vector(0, 0, 1), 9), math.radians(0), math.radians(90)), False)
sketch5.addGeometry(Part.LineSegment(App.Vector(32, -70, 0), App.Vector(37, -70, 0)), False)
sketch5.addGeometry(Part.LineSegment(App.Vector(37, -70, 0), App.Vector(37, -62, 0)), False)
sketch5.addConstraint(Sketcher.Constraint("Tangent", 0, 1, 1, 1))
sketch5.addConstraint(Sketcher.Constraint("Coincident", 1, 2, 2, 1))
sketch5.addConstraint(Sketcher.Constraint("Coincident", 2, 2, 3, 1))
sketch5.addConstraint(Sketcher.Constraint("Coincident", 3, 2, 0, 2))
sketch5.addConstraint(Sketcher.Constraint("Tangent", 4, 2, 5, 2))
sketch5.addConstraint(Sketcher.Constraint("Coincident", 5, 1, 6, 1))
sketch5.addConstraint(Sketcher.Constraint("Coincident", 6, 2, 7, 1))
sketch5.addConstraint(Sketcher.Constraint("Coincident", 7, 2, 4, 1))
sketch5.addConstraint(Sketcher.Constraint("Horizontal", 1))
sketch5.addConstraint(Sketcher.Constraint("Vertical", 2))
sketch5.addConstraint(Sketcher.Constraint("Horizontal", 3))
sketch5.addConstraint(Sketcher.Constraint("Horizontal", 4))
sketch5.addConstraint(Sketcher.Constraint("Horizontal", 6))
sketch5.addConstraint(Sketcher.Constraint("Vertical", 7))
sketch5.addConstraint(Sketcher.Constraint("Equal", 0, 5))
sketch5.addConstraint(Sketcher.Constraint("Symmetric", 0, 3, 5, 3, -1))
sketch5.addConstraint(Sketcher.Constraint("Symmetric", 2, 2, 6, 2, -1))
sketch5.addConstraint(Sketcher.Constraint("Horizontal", 0, 3, 2, 2))
sketch5.addConstraint(Sketcher.Constraint("Radius", 0, Q("9 mm")))
sketch5.addConstraint(Sketcher.Constraint("DistanceX", 3, 2, 3, 1, Q("5 mm")))
sketch5.addConstraint(Sketcher.Constraint("DistanceY", 5, 3, 0, 3, Q("141 mm")))
sketch5.addConstraint(Sketcher.Constraint("DistanceX", -1, 1, 0, 3, Q("23.3 mm")))
pad3 = body.newObject("PartDesign::Pad", "Pad002")
pad3.Profile = sketch5
pad3.Length = 27

sketch6 = body.newObject("Sketcher::SketchObject", "Sketch005")
sketch6.AttachmentSupport = (doc.getObject("YZ_Plane"), [""])
sketch6.MapMode = "FlatFace"
sketch6.addGeometry(Part.Circle(App.Vector(-66, 20.2, 0), App.Vector(0, 0, 1), 2.6), False)
sketch6.addGeometry(Part.Circle(App.Vector(-66, 6.8, 0), App.Vector(0, 0, 1), 2.6), False)
sketch6.addGeometry(Part.Circle(App.Vector(66, 20.2, 0), App.Vector(0, 0, 1), 2.6), False)
sketch6.addGeometry(Part.Circle(App.Vector(66, 6.8, 0), App.Vector(0, 0, 1), 2.6), False)
sketch6.addConstraint(Sketcher.Constraint("Equal", 0, 1))
sketch6.addConstraint(Sketcher.Constraint("Equal", 1, 2))
sketch6.addConstraint(Sketcher.Constraint("Equal", 2, 3))
sketch6.addConstraint(Sketcher.Constraint("Symmetric", 0, 3, 2, 3, -2))
sketch6.addConstraint(Sketcher.Constraint("Symmetric", 1, 3, 3, 3, -2))
sketch6.addConstraint(Sketcher.Constraint("Vertical", 0, 3, 1, 3))
sketch6.addConstraint(Sketcher.Constraint("Diameter", 0, Q("5.2 mm")))
sketch6.addConstraint(Sketcher.Constraint("DistanceX", 0, 3, -1, 1, Q("66 mm")))
sketch6.addConstraint(Sketcher.Constraint("DistanceY", 1, 3, 0, 3, Q("13.325 mm")))
sketch6.addConstraint(Sketcher.Constraint("DistanceY", -1, 1, 0, 3, Q("20.1625 mm")))
pocket3 = body.newObject("PartDesign::Pocket", "Pocket002")
pocket3.Profile = sketch6
pocket3.Type = "ThroughAll"
pocket3.Reversed = True

sketch7 = body.newObject("Sketcher::SketchObject", "Sketch006")
sketch7.AttachmentSupport = (doc.getObject("YZ_Plane"), [""])
sketch7.MapMode = "FlatFace"
sketch7.addGeometry(Part.Circle(App.Vector(-66, 20.2, 0), App.Vector(0, 0, 1), 4.5), False)
sketch7.addGeometry(Part.Circle(App.Vector(-66, 20.2, 0), App.Vector(0, 0, 1), 2.6), False)
sketch7.addGeometry(Part.Circle(App.Vector(-66, 6.8, 0), App.Vector(0, 0, 1), 4.5), False)
sketch7.addGeometry(Part.Circle(App.Vector(-66, 6.8, 0), App.Vector(0, 0, 1), 2.6), False)
sketch7.addGeometry(Part.Circle(App.Vector(66, 20.2, 0), App.Vector(0, 0, 1), 4.5), False)
sketch7.addGeometry(Part.Circle(App.Vector(66, 20.2, 0), App.Vector(0, 0, 1), 2.6), False)
sketch7.addGeometry(Part.Circle(App.Vector(66, 6.8, 0), App.Vector(0, 0, 1), 4.5), False)
sketch7.addGeometry(Part.Circle(App.Vector(66, 6.8, 0), App.Vector(0, 0, 1), 2.6), False)
sketch7.addConstraint(Sketcher.Constraint("Coincident", 1, 3, 0, 3))
sketch7.addConstraint(Sketcher.Constraint("Coincident", 3, 3, 2, 3))
sketch7.addConstraint(Sketcher.Constraint("Coincident", 5, 3, 4, 3))
sketch7.addConstraint(Sketcher.Constraint("Coincident", 7, 3, 6, 3))
sketch7.addConstraint(Sketcher.Constraint("Equal", 0, 2))
sketch7.addConstraint(Sketcher.Constraint("Equal", 1, 3))
sketch7.addConstraint(Sketcher.Constraint("Equal", 2, 4))
sketch7.addConstraint(Sketcher.Constraint("Equal", 3, 5))
sketch7.addConstraint(Sketcher.Constraint("Equal", 4, 6))
sketch7.addConstraint(Sketcher.Constraint("Equal", 5, 7))
sketch7.addConstraint(Sketcher.Constraint("Symmetric", 0, 3, 4, 3, -2))
sketch7.addConstraint(Sketcher.Constraint("Symmetric", 2, 3, 6, 3, -2))
sketch7.addConstraint(Sketcher.Constraint("Vertical", 1, 3, 2, 3))
sketch7.addConstraint(Sketcher.Constraint("Diameter", 0, Q("9 mm")))
sketch7.addConstraint(Sketcher.Constraint("Diameter", 1, Q("5.2 mm")))
sketch7.addConstraint(Sketcher.Constraint("DistanceX", 0, 3, -1, 1, Q("66 mm")))
sketch7.addConstraint(Sketcher.Constraint("DistanceY", 2, 3, 0, 3, Q("13.325 mm")))
sketch7.addConstraint(Sketcher.Constraint("DistanceY", -1, 1, 0, 3, Q("20.1625 mm")))
pocket4 = body.newObject("PartDesign::Pocket", "Pocket003")
pocket4.Profile = sketch7
pocket4.Length = 32
pocket4.Reversed = True

sketch8 = body.newObject("Sketcher::SketchObject", "Sketch007")
sketch8.AttachmentSupport = (doc.getObject("YZ_Plane"), [""])
sketch8.MapMode = "FlatFace"
sketch8.AttachmentOffset = App.Placement(App.Vector(0, 0, 37.3), App.Rotation())
sketch8.addGeometry(Part.Circle(App.Vector(11.6, 13.5, 0), App.Vector(0, 0, 1), 2.1), False)
sketch8.addGeometry(Part.Circle(App.Vector(-11.6, 13.5, 0), App.Vector(0, 0, 1), 2.1), False)
sketch8.addConstraint(Sketcher.Constraint("Equal", 0, 1))
sketch8.addConstraint(Sketcher.Constraint("Symmetric", 0, 3, 1, 3, -2))
sketch8.addConstraint(Sketcher.Constraint("Diameter", 0, Q("4.3 mm")))
sketch8.addConstraint(Sketcher.Constraint("DistanceX", -1, 1, 0, 3, Q("11.6 mm")))
sketch8.addConstraint(Sketcher.Constraint("DistanceY", -1, 1, 0, 3, Q("13.5 mm")))
pocket5 = body.newObject("PartDesign::Pocket", "Pocket004")
pocket5.Profile = sketch8
pocket5.Length = 12

doc.recompute()
